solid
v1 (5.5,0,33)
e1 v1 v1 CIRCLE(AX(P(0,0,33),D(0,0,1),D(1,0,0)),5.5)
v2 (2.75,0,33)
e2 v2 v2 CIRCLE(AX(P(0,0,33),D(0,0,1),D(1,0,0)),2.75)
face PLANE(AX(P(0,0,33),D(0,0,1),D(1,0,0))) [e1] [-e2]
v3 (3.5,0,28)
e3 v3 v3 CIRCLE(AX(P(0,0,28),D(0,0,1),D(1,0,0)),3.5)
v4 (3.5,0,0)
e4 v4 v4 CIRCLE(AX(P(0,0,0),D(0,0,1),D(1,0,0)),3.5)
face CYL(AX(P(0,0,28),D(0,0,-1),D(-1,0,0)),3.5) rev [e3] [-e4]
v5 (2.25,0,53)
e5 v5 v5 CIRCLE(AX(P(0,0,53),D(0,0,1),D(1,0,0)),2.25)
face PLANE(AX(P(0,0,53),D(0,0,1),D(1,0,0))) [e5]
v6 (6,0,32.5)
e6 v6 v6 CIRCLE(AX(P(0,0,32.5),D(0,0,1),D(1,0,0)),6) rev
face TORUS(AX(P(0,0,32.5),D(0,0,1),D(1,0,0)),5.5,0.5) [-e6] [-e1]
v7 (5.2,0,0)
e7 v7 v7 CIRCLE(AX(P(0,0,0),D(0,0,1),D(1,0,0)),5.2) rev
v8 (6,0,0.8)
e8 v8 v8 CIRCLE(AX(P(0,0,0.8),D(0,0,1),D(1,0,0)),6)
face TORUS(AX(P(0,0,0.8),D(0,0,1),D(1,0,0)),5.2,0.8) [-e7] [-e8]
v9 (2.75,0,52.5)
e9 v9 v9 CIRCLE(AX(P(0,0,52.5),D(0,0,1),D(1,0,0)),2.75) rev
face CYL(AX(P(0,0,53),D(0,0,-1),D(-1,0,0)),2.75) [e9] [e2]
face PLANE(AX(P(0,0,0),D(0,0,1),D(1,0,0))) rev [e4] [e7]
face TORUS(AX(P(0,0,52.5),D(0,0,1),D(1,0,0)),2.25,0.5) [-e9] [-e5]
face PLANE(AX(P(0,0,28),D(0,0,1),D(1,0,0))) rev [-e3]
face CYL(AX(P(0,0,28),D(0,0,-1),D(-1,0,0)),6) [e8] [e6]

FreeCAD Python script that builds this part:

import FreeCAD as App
import Part
import Sketcher

V = App.Vector
Q = App.Units.Quantity


def edges_at(feature, points):
    """Names of the edges that pass closest to the given points."""
    edges = feature.Shape.Edges
    near = lambda p: min(range(len(edges)), key=lambda i: edges[i].distToShape(Part.Vertex(*p))[0])
    return sorted({f"Edge{near(p) + 1}" for p in points})

doc = App.newDocument("Part")
body = doc.addObject("PartDesign::Body", "Body")

sketch1 = body.newObject("Sketcher::SketchObject", "Sketch")
sketch1.AttachmentSupport = (doc.getObject("XY_Plane"), [""])
sketch1.MapMode = "FlatFace"
sketch1.addGeometry([
    Part.Circle(V(0, 0, 0), V(0, 0, 1), 6),
    Part.Circle(V(0, 0, 0), V(0, 0, 1), 3.5),
], False)
sketch1.addConstraint([
    Sketcher.Constraint("Coincident", 0, 3, -1, 1),
    Sketcher.Constraint("Coincident", 1, 3, -1, 1),
    Sketcher.Constraint("Diameter", 0, Q("12 mm")),
    Sketcher.Constraint("Diameter", 1, Q("7 mm")),
])
pad1 = body.newObject("PartDesign::Pad", "Pad")
pad1.Profile = sketch1
pad1.Length = 28

sketch2 = body.newObject("Sketcher::SketchObject", "Sketch001")
sketch2.AttachmentSupport = (doc.getObject("XY_Plane"), [""])
sketch2.MapMode = "FlatFace"
sketch2.AttachmentOffset = App.Placement(V(0, 0, 28), App.Rotation())
sketch2.addGeometry(Part.Circle(V(0, 0, 0), V(0, 0, 1), 6), False)
sketch2.addConstraint([
    Sketcher.Constraint("Coincident", 0, 3, -1, 1),
    Sketcher.Constraint("Diameter", 0, Q("12 mm")),
])
pad2 = body.newObject("PartDesign::Pad", "Pad001")
pad2.Profile = sketch2
pad2.Length = 5

sketch3 = body.newObject("Sketcher::SketchObject", "Sketch002")
sketch3.AttachmentSupport = (doc.getObject("XY_Plane"), [""])
sketch3.MapMode = "FlatFace"
sketch3.AttachmentOffset = App.Placement(V(0, 0, 33), App.Rotation())
sketch3.addGeometry(Part.Circle(V(0, 0, 0), V(0, 0, 1), 2.8), False)
sketch3.addConstraint([
    Sketcher.Constraint("Coincident", 0, 3, -1, 1),
    Sketcher.Constraint("Diameter", 0, Q("5.5 mm")),
])
pad3 = body.newObject("PartDesign::Pad", "Pad002")
pad3.Profile = sketch3
pad3.Length = 20
doc.recompute()

fillet = body.newObject("PartDesign::Fillet", "Fillet")
fillet.Base = (pad3, edges_at(pad3, [(-6, 0, 33)]))
fillet.Radius = 0.5
doc.recompute()

fillet2 = body.newObject("PartDesign::Fillet", "Fillet001")
fillet2.Base = (fillet, edges_at(fillet, [(-6, 0, 0)]))
fillet2.Radius = 0.8
doc.recompute()

fillet3 = body.newObject("PartDesign::Fillet", "Fillet002")
fillet3.Base = (fillet2, edges_at(fillet2, [(-2.75, 0, 53)]))
fillet3.Radius = 0.5

doc.recompute()
